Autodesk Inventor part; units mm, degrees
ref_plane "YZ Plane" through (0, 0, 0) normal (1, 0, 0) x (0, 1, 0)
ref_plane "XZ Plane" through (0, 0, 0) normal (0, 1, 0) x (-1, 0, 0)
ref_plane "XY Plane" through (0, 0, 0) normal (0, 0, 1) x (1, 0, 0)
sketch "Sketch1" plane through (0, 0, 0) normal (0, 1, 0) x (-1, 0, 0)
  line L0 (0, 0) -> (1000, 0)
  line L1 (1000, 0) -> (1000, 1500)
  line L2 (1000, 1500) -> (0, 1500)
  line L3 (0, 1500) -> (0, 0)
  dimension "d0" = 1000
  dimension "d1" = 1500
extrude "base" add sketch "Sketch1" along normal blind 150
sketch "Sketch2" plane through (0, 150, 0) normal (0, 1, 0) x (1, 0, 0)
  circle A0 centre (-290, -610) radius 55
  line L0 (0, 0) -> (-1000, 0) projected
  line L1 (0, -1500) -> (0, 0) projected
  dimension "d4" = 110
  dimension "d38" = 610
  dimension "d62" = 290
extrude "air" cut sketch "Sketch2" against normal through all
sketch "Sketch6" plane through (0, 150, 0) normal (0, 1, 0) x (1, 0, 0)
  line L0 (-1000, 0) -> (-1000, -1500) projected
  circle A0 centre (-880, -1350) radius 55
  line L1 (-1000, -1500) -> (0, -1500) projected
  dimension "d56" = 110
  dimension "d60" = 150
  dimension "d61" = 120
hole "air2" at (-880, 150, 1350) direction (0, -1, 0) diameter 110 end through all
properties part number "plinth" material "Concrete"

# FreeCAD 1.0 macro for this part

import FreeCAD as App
import Part
import Sketcher
from FreeCAD import Vector
Q = App.Units.Quantity

doc = App.newDocument("Part")
body = doc.addObject("PartDesign::Body", "Body")

sketch1 = body.newObject("Sketcher::SketchObject", "Sketch")
sketch1.AttachmentSupport = (doc.getObject("XZ_Plane"), [""])
sketch1.MapMode = "FlatFace"
sketch1.addGeometry([
    Part.LineSegment(Vector(0, 1500, 0), Vector(0, 0, 0)),
    Part.LineSegment(Vector(0, 0, 0), Vector(-1000, 0, 0)),
    Part.LineSegment(Vector(-1000, 0, 0), Vector(-1000, 1500, 0)),
    Part.LineSegment(Vector(-1000, 1500, 0), Vector(0, 1500, 0)),
], False)
sketch1.addConstraint([
    Sketcher.Constraint("Coincident", 0, 2, 1, 1),
    Sketcher.Constraint("Coincident", 1, 2, 2, 1),
    Sketcher.Constraint("Coincident", 2, 2, 3, 1),
    Sketcher.Constraint("Coincident", 3, 2, 0, 1),
    Sketcher.Constraint("Vertical", 0),
    Sketcher.Constraint("Horizontal", 1),
    Sketcher.Constraint("Vertical", 2),
    Sketcher.Constraint("Horizontal", 3),
    Sketcher.Constraint("Coincident", 0, 2, -1, 1),
    Sketcher.Constraint("DistanceX", 1, 2, 1, 1, Q("1000 mm")),
    Sketcher.Constraint("DistanceY", 0, 2, 0, 1, Q("1500 mm")),
])
pad1 = body.newObject("PartDesign::Pad", "Pad")
pad1.Profile = sketch1
pad1.Length = 150
pad1.Reversed = True

sketch2 = body.newObject("Sketcher::SketchObject", "Sketch001")
sketch2.AttachmentSupport = (doc.getObject("XZ_Plane"), [""])
sketch2.MapMode = "FlatFace"
sketch2.AttachmentOffset = App.Placement(Vector(0, 0, -150), App.Rotation())
sketch2.addGeometry(Part.Circle(Vector(-290, 610, 0), Vector(0, 0, 1), 55), False)
sketch2.addConstraint([
    Sketcher.Constraint("Diameter", 0, Q("110 mm")),
    Sketcher.Constraint("DistanceX", 0, 3, -1, 1, Q("290 mm")),
    Sketcher.Constraint("DistanceY", -1, 1, 0, 3, Q("610 mm")),
])
pocket1 = body.newObject("PartDesign::Pocket", "Pocket")
pocket1.Profile = sketch2
pocket1.Type = "ThroughAll"
pocket1.Reversed = True

sketch3 = body.newObject("Sketcher::SketchObject", "Sketch002")
sketch3.AttachmentSupport = (doc.getObject("XZ_Plane"), [""])
sketch3.MapMode = "FlatFace"
sketch3.AttachmentOffset = App.Placement(Vector(0, 0, -150), App.Rotation())
sketch3.addGeometry(Part.Circle(Vector(-880, 1350, 0), Vector(0, 0, 1), 55), False)
sketch3.addConstraint([
    Sketcher.Constraint("Diameter", 0, Q("110 mm")),
    Sketcher.Constraint("DistanceX", 0, 3, -1, 1, Q("880 mm")),
    Sketcher.Constraint("DistanceY", -1, 1, 0, 3, Q("1350 mm")),
])
doc.recompute()
hole = body.newObject("PartDesign::Hole", "Hole")
hole.Profile = sketch3
hole.ThreadType = "None"
hole.Diameter = 110
hole.DepthType = "ThroughAll"
hole.Reversed = True

doc.recompute()
